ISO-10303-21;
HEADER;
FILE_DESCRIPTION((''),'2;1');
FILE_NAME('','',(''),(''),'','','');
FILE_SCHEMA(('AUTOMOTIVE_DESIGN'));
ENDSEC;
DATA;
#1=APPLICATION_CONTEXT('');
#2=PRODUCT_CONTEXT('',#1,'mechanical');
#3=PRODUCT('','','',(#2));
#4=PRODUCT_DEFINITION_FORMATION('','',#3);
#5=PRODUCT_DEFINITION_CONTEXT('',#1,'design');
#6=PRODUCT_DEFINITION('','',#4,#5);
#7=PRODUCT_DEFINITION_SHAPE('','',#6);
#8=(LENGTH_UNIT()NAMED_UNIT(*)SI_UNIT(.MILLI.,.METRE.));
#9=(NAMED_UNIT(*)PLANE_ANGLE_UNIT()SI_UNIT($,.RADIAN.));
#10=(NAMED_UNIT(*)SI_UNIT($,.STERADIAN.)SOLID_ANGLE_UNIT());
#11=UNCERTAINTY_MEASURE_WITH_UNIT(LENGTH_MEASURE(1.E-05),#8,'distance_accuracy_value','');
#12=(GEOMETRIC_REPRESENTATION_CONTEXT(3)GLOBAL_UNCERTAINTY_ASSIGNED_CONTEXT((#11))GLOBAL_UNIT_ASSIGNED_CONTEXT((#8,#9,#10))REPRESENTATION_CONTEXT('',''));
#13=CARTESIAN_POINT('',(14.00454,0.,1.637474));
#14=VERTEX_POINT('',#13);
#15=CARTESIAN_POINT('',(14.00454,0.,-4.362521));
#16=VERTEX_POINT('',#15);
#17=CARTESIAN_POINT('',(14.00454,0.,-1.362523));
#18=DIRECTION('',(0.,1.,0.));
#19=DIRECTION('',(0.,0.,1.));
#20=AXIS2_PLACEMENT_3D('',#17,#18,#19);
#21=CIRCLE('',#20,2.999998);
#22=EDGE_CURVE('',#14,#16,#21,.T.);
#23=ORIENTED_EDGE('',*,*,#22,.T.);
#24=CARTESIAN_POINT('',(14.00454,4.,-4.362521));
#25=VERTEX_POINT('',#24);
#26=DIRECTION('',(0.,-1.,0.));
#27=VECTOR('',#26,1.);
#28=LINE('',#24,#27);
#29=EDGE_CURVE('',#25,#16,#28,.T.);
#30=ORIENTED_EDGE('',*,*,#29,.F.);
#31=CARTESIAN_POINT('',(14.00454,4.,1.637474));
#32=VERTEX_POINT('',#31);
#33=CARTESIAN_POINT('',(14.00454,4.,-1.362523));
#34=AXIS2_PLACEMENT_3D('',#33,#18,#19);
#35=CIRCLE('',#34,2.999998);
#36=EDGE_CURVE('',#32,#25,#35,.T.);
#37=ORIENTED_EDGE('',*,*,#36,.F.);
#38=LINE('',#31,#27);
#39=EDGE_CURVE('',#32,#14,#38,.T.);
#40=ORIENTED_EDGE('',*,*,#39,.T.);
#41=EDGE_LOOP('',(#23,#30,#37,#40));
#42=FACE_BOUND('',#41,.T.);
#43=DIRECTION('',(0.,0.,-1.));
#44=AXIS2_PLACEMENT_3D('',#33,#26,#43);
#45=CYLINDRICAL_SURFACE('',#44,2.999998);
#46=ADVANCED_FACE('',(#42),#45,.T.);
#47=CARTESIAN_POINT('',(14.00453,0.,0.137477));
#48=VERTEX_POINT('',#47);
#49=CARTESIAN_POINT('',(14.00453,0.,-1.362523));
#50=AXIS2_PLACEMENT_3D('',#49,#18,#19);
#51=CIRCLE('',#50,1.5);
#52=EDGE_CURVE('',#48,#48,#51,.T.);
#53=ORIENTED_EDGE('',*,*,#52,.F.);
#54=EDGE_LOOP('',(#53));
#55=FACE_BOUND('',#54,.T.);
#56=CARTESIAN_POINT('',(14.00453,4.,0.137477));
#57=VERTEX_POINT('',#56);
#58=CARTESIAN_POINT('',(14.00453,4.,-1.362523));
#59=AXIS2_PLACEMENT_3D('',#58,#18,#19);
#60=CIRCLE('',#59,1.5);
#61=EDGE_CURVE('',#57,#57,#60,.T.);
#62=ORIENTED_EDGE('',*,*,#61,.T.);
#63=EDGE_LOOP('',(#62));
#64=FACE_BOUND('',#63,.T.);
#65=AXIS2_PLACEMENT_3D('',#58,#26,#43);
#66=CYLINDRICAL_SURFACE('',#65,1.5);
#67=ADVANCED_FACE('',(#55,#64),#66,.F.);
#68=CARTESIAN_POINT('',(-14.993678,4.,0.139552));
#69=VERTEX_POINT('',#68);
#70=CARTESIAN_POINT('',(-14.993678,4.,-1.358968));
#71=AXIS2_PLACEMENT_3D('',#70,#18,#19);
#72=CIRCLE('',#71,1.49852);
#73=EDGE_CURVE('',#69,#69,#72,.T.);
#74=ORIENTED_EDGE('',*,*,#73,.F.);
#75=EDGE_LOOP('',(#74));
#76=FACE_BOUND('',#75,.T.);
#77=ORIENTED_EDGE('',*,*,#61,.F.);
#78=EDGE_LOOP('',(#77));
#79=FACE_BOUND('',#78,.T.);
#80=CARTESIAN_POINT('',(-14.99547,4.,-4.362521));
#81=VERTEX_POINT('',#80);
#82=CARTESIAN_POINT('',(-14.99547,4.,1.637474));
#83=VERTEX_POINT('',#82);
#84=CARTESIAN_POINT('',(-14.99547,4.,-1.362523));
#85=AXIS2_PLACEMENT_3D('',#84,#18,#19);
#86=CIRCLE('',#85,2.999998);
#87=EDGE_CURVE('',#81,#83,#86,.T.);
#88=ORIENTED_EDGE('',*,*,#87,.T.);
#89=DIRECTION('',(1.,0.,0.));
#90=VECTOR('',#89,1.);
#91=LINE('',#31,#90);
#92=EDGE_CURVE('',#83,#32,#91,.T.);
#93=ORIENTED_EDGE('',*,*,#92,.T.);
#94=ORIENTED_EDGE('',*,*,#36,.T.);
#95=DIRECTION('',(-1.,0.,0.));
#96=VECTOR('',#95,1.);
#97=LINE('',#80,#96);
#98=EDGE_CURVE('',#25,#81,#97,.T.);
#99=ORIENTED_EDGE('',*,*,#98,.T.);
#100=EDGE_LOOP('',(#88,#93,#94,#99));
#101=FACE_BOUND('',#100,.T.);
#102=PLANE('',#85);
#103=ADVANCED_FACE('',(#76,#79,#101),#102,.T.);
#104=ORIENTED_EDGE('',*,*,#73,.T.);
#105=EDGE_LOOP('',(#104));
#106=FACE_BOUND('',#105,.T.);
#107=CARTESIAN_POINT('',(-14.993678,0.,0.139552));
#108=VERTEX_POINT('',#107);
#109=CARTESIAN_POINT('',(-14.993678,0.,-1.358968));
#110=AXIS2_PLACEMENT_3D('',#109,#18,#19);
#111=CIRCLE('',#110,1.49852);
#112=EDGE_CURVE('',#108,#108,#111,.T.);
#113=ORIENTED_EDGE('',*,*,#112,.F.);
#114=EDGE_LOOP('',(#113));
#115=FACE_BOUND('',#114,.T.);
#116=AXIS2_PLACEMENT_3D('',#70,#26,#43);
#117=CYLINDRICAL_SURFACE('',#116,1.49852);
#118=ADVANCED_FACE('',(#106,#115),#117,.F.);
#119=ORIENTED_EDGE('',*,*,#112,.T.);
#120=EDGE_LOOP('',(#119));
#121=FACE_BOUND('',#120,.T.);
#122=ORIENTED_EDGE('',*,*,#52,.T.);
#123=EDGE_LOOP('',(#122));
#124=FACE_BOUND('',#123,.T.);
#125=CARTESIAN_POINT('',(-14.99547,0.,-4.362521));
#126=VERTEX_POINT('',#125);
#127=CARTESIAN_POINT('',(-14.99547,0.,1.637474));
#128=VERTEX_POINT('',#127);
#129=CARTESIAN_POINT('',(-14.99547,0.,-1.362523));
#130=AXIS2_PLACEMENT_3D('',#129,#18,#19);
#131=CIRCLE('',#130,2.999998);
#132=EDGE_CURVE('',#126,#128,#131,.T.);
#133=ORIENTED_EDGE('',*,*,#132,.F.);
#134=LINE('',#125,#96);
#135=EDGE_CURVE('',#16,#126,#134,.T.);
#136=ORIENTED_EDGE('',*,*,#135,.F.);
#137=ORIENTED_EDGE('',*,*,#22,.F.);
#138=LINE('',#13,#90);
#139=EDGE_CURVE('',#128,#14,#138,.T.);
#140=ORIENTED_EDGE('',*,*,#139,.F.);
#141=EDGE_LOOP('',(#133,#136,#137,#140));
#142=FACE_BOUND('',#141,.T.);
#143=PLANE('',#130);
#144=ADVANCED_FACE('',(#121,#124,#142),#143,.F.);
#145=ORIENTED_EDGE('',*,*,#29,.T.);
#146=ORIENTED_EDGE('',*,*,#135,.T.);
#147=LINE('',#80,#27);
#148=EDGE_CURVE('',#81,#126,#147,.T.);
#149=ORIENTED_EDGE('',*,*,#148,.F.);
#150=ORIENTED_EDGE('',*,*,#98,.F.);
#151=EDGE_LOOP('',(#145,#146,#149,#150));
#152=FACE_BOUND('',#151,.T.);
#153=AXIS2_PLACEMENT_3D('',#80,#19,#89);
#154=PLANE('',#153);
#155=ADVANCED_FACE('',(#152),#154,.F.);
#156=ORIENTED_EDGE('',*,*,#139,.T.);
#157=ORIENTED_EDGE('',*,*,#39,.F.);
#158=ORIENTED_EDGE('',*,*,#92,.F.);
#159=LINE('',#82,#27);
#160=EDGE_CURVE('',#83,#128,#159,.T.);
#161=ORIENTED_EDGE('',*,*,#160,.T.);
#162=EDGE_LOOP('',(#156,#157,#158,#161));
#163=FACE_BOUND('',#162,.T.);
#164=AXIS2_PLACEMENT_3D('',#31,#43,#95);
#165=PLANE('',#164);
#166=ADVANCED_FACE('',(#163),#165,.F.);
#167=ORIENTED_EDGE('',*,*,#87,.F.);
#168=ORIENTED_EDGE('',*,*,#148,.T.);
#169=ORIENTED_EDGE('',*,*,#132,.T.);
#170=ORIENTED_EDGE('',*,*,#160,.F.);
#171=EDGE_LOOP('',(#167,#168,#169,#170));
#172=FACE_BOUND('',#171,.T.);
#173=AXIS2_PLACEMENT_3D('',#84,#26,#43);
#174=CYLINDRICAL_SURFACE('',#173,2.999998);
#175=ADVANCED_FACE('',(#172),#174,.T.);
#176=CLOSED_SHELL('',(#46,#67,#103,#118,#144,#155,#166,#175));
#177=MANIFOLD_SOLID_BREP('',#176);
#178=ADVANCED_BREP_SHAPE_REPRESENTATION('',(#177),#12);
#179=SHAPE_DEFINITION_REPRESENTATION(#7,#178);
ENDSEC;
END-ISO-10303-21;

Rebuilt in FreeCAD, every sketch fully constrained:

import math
import FreeCAD as App
import Part
import Sketcher

doc = App.newDocument("Part")
body = doc.addObject("PartDesign::Body", "Body")

sketch1 = body.newObject("Sketcher::SketchObject", "Sketch")
sketch1.AttachmentSupport = (doc.getObject("XZ_Plane"), [""])
sketch1.MapMode = "FlatFace"
sketch1.addGeometry([
    Part.LineSegment(App.Vector(14, -4.4, 0), App.Vector(-15, -4.4, 0)),
    Part.ArcOfCircle(Part.Circle(App.Vector(-15, -1.4, 0), App.Vector(0, 0, 1), 3), math.radians(90), math.radians(270)),
    Part.LineSegment(App.Vector(-15, 1.6, 0), App.Vector(14, 1.6, 0)),
    Part.ArcOfCircle(Part.Circle(App.Vector(14, -1.4, 0), App.Vector(0, 0, 1), 3), math.radians(-90), math.radians(90)),
    Part.Circle(App.Vector(-15, -1.4, 0), App.Vector(0, 0, 1), 1.5),
    Part.Circle(App.Vector(14, -1.4, 0), App.Vector(0, 0, 1), 1.5),
], False)
sketch1.addConstraint([
    Sketcher.Constraint("Tangent", 0, 2, 1, 2),
    Sketcher.Constraint("Tangent", 1, 1, 2, 1),
    Sketcher.Constraint("Tangent", 2, 2, 3, 2),
    Sketcher.Constraint("Tangent", 3, 1, 0, 1),
    Sketcher.Constraint("Horizontal", 0),
    Sketcher.Constraint("Horizontal", 2),
    Sketcher.Constraint("Horizontal", 3, 3, 5, 3),
    Sketcher.Constraint("Diameter", 5, 3.0),
    Sketcher.Constraint("DistanceX", 1, 3, 5, 3, 29.0),
    Sketcher.Constraint("Diameter", 4, 2.99704),
    Sketcher.Constraint("Radius", 1, 2.999998),
    Sketcher.Constraint("DistanceX", 0, 2, 0, 1, 29.00001),
    Sketcher.Constraint("DistanceX", 1, 3, -1, 1, 14.99547),
    Sketcher.Constraint("DistanceY", 4, 3, -1, 1, 1.358968),
    Sketcher.Constraint("DistanceY", 0, 2, -1, 1, 4.362521),
    Sketcher.Constraint("DistanceX", 4, 3, 3, 3, 28.998218),
])
pad1 = body.newObject("PartDesign::Pad", "Pad")
pad1.Profile = sketch1
pad1.Length = 4
pad1.Reversed = True

doc.recompute()
